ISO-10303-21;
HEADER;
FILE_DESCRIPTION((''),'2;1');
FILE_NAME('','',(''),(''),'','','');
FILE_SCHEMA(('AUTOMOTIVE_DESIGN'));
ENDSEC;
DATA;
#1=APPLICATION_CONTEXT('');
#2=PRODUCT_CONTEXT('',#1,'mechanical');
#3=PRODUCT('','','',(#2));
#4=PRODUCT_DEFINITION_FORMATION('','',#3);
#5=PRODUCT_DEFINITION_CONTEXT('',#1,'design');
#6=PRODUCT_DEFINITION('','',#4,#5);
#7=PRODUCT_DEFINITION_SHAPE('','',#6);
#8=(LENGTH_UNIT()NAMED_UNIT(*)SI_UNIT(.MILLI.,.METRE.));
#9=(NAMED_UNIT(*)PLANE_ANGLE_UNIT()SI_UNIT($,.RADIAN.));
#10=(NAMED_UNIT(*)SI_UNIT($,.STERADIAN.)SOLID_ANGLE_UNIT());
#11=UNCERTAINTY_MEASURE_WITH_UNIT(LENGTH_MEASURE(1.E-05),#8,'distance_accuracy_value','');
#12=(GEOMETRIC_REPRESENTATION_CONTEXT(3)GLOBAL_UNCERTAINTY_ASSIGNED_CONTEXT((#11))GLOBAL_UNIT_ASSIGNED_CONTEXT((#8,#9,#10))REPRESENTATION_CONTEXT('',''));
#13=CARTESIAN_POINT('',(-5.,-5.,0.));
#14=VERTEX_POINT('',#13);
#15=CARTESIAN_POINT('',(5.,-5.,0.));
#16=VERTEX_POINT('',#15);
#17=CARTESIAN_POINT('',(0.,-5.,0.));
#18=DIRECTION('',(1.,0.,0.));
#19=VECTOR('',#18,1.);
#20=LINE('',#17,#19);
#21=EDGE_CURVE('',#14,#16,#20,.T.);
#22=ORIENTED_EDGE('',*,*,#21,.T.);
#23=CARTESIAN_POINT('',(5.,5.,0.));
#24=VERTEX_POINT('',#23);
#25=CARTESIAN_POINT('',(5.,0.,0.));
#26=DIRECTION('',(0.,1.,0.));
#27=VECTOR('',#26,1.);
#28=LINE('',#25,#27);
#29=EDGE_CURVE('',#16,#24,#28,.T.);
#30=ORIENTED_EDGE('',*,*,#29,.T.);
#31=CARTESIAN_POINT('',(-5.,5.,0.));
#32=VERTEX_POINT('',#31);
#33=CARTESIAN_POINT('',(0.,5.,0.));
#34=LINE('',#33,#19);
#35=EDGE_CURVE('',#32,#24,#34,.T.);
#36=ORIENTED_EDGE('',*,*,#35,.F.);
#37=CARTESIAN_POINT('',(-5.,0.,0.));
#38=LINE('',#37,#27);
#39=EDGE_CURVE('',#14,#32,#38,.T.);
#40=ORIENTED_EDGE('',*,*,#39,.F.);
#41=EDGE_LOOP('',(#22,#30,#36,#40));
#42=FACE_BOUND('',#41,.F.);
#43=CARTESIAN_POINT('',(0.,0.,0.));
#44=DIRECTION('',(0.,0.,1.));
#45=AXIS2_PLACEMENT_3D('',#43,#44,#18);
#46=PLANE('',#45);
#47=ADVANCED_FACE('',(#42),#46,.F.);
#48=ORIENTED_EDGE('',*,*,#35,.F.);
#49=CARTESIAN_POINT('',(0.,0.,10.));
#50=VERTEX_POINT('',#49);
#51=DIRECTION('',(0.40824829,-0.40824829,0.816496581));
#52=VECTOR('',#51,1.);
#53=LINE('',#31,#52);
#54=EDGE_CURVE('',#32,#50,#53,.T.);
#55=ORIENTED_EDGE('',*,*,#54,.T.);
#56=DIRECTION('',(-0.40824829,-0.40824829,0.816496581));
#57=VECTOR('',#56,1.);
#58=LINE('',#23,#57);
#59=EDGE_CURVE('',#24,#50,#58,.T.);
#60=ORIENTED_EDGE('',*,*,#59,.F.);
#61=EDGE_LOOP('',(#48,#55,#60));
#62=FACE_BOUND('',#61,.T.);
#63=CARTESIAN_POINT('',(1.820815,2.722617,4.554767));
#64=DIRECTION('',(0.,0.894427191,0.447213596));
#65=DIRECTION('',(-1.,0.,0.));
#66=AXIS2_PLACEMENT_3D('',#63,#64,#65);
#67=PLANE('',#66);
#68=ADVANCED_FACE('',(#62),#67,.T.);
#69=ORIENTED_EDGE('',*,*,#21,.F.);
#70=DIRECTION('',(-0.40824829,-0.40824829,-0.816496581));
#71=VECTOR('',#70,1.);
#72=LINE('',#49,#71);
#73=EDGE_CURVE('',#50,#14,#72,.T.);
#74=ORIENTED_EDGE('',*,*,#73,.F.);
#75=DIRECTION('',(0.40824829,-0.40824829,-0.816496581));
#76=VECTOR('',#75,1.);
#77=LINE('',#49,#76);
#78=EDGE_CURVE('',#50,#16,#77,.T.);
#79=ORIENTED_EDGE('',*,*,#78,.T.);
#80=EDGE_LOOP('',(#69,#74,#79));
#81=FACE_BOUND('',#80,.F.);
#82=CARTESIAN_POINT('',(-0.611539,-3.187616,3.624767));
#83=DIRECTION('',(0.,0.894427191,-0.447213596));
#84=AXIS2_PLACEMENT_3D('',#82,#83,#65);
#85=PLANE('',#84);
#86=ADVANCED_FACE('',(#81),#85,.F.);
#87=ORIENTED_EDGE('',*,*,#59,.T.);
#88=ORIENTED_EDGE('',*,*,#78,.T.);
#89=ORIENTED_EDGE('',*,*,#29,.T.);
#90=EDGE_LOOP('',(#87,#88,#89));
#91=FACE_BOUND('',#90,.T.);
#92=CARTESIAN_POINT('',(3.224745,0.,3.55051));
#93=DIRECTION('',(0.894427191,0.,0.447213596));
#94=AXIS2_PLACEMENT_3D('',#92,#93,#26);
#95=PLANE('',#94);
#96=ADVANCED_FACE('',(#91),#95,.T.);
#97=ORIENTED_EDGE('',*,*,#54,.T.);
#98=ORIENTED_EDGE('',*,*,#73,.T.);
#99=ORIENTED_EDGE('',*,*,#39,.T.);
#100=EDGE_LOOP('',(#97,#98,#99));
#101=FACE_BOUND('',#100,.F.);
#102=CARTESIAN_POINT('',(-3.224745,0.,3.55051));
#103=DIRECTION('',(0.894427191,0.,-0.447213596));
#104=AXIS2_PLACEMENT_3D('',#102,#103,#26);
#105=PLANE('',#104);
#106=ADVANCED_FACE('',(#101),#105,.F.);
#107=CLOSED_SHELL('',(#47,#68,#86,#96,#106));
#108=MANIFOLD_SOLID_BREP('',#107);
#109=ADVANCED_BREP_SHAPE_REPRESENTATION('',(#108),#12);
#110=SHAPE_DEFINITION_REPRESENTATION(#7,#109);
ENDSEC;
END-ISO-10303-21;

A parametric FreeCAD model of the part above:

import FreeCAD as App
import Part
import Sketcher
Q = App.Units.Quantity


def add_polygon(sketch, points):
    """Adds a closed chain of lines whose ends are joined by coincident constraints."""
    first, n = sketch.GeometryCount, len(points)
    for a, b in zip(points, points[1:] + points[:1]):
        sketch.addGeometry(Part.LineSegment(App.Vector(*a, 0), App.Vector(*b, 0)), False)
    for i in range(n):
        sketch.addConstraint(Sketcher.Constraint("Coincident", first + i, 2, first + (i + 1) % n, 1))

doc = App.newDocument("Part")
body = doc.addObject("PartDesign::Body", "Body")

sketch1 = body.newObject("Sketcher::SketchObject", "Sketch")
sketch1.AttachmentSupport = (doc.getObject("XY_Plane"), [""])
sketch1.MapMode = "FlatFace"
add_polygon(sketch1, [(-5, 5), (-5, -5), (5, -5), (5, 5)])
sketch1.addConstraint(Sketcher.Constraint("Vertical", 0))
sketch1.addConstraint(Sketcher.Constraint("Horizontal", 1))
sketch1.addConstraint(Sketcher.Constraint("Vertical", 2))
sketch1.addConstraint(Sketcher.Constraint("Horizontal", 3))
sketch1.addConstraint(Sketcher.Constraint("Symmetric", 0, 2, 2, 2, -1, 1))
sketch1.addConstraint(Sketcher.Constraint("Equal", 3, 0))
sketch1.addConstraint(Sketcher.Constraint("DistanceX", 1, 1, 1, 2, Q("10 mm")))
pad1 = body.newObject("PartDesign::Pad", "Pad")
pad1.Profile = sketch1
pad1.Length = 10

sketch2 = body.newObject("Sketcher::SketchObject", "Sketch001")
sketch2.Placement = App.Placement(App.Vector(4, 0, 2), App.Rotation(App.Vector(0, 1, 0), App.Vector(-0.447213595, 0, 0.894427191), App.Vector(0.894427191, 0, 0.447213595), "ZXY"))
add_polygon(sketch2, [(0, 9), (-5, -2), (5, -2)])
sketch2.addConstraint(Sketcher.Constraint("Horizontal", 1))
sketch2.addConstraint(Sketcher.Constraint("PointOnObject", 2, 2, -2))
sketch2.addConstraint(Sketcher.Constraint("Equal", 0, 2))
sketch2.addConstraint(Sketcher.Constraint("DistanceX", 1, 1, 1, 2, Q("10 mm")))
sketch2.addConstraint(Sketcher.Constraint("Distance", 0, Q("12.247449 mm")))
sketch2.addConstraint(Sketcher.Constraint("DistanceY", -1, 1, 2, 2, Q("8.944272 mm")))
pocket1 = body.newObject("PartDesign::Pocket", "Pocket")
pocket1.Profile = sketch2
pocket1.Type = "ThroughAll"
pocket1.Reversed = True

sketch3 = body.newObject("Sketcher::SketchObject", "Sketch002")
sketch3.Placement = App.Placement(App.Vector(-4, 0, 2), App.Rotation(App.Vector(0, 1, 0), App.Vector(0.447213595, 0, 0.894427191), App.Vector(0.894427191, 0, -0.447213595), "ZXY"))
add_polygon(sketch3, [(-5, -2), (5, -2), (0, 9)])
sketch3.addConstraint(Sketcher.Constraint("Horizontal", 0))
sketch3.addConstraint(Sketcher.Constraint("PointOnObject", 1, 2, -2))
sketch3.addConstraint(Sketcher.Constraint("Equal", 1, 2))
sketch3.addConstraint(Sketcher.Constraint("DistanceX", 0, 1, 0, 2, Q("10 mm")))
sketch3.addConstraint(Sketcher.Constraint("Distance", 1, Q("12.247449 mm")))
sketch3.addConstraint(Sketcher.Constraint("DistanceY", -1, 1, 1, 2, Q("8.944272 mm")))
pocket2 = body.newObject("PartDesign::Pocket", "Pocket001")
pocket2.Profile = sketch3
pocket2.Type = "ThroughAll"

sketch4 = body.newObject("Sketcher::SketchObject", "Sketch003")
sketch4.Placement = App.Placement(App.Vector(0, -4, 2), App.Rotation(App.Vector(-1, 0, 0), App.Vector(0, 0.447213595, 0.894427191), App.Vector(0, 0.894427191, -0.447213595), "ZXY"))
add_polygon(sketch4, [(-9, 11), (-9, -8), (10, -8), (10, 11)])
sketch4.addConstraint(Sketcher.Constraint("Vertical", 0))
sketch4.addConstraint(Sketcher.Constraint("Horizontal", 1))
sketch4.addConstraint(Sketcher.Constraint("Vertical", 2))
sketch4.addConstraint(Sketcher.Constraint("Horizontal", 3))
sketch4.addConstraint(Sketcher.Constraint("DistanceY", 0, 2, 0, 1, Q("18.87211 mm")))
sketch4.addConstraint(Sketcher.Constraint("DistanceY", -1, 1, 2, 2, Q("11.2526 mm")))
sketch4.addConstraint(Sketcher.Constraint("DistanceX", 1, 1, 1, 2, Q("19.297665 mm")))
sketch4.addConstraint(Sketcher.Constraint("DistanceX", -1, 1, 1, 2, Q("10.260371 mm")))
pocket3 = body.newObject("PartDesign::Pocket", "Pocket002")
pocket3.Profile = sketch4
pocket3.Type = "ThroughAll"

sketch5 = body.newObject("Sketcher::SketchObject", "Sketch004")
sketch5.Placement = App.Placement(App.Vector(0, 4, 2), App.Rotation(App.Vector(-1, 0, 0), App.Vector(0, -0.447213595, 0.894427191), App.Vector(0, 0.894427191, 0.447213595), "ZXY"))
add_polygon(sketch5, [(-26, 25), (-26, -19), (22, -19), (22, 25)])
sketch5.addConstraint(Sketcher.Constraint("Vertical", 0))
sketch5.addConstraint(Sketcher.Constraint("Horizontal", 1))
sketch5.addConstraint(Sketcher.Constraint("Vertical", 2))
sketch5.addConstraint(Sketcher.Constraint("Horizontal", 3))
sketch5.addConstraint(Sketcher.Constraint("DistanceY", 0, 2, 0, 1, Q("43.699421 mm")))
sketch5.addConstraint(Sketcher.Constraint("DistanceX", 1, 1, 1, 2, Q("48.251444 mm")))
sketch5.addConstraint(Sketcher.Constraint("DistanceX", 0, 2, -1, 1, Q("25.946537 mm")))
sketch5.addConstraint(Sketcher.Constraint("DistanceY", 0, 2, -1, 1, Q("18.993394 mm")))
pocket4 = body.newObject("PartDesign::Pocket", "Pocket003")
pocket4.Profile = sketch5
pocket4.Type = "ThroughAll"
pocket4.Reversed = True

doc.recompute()
